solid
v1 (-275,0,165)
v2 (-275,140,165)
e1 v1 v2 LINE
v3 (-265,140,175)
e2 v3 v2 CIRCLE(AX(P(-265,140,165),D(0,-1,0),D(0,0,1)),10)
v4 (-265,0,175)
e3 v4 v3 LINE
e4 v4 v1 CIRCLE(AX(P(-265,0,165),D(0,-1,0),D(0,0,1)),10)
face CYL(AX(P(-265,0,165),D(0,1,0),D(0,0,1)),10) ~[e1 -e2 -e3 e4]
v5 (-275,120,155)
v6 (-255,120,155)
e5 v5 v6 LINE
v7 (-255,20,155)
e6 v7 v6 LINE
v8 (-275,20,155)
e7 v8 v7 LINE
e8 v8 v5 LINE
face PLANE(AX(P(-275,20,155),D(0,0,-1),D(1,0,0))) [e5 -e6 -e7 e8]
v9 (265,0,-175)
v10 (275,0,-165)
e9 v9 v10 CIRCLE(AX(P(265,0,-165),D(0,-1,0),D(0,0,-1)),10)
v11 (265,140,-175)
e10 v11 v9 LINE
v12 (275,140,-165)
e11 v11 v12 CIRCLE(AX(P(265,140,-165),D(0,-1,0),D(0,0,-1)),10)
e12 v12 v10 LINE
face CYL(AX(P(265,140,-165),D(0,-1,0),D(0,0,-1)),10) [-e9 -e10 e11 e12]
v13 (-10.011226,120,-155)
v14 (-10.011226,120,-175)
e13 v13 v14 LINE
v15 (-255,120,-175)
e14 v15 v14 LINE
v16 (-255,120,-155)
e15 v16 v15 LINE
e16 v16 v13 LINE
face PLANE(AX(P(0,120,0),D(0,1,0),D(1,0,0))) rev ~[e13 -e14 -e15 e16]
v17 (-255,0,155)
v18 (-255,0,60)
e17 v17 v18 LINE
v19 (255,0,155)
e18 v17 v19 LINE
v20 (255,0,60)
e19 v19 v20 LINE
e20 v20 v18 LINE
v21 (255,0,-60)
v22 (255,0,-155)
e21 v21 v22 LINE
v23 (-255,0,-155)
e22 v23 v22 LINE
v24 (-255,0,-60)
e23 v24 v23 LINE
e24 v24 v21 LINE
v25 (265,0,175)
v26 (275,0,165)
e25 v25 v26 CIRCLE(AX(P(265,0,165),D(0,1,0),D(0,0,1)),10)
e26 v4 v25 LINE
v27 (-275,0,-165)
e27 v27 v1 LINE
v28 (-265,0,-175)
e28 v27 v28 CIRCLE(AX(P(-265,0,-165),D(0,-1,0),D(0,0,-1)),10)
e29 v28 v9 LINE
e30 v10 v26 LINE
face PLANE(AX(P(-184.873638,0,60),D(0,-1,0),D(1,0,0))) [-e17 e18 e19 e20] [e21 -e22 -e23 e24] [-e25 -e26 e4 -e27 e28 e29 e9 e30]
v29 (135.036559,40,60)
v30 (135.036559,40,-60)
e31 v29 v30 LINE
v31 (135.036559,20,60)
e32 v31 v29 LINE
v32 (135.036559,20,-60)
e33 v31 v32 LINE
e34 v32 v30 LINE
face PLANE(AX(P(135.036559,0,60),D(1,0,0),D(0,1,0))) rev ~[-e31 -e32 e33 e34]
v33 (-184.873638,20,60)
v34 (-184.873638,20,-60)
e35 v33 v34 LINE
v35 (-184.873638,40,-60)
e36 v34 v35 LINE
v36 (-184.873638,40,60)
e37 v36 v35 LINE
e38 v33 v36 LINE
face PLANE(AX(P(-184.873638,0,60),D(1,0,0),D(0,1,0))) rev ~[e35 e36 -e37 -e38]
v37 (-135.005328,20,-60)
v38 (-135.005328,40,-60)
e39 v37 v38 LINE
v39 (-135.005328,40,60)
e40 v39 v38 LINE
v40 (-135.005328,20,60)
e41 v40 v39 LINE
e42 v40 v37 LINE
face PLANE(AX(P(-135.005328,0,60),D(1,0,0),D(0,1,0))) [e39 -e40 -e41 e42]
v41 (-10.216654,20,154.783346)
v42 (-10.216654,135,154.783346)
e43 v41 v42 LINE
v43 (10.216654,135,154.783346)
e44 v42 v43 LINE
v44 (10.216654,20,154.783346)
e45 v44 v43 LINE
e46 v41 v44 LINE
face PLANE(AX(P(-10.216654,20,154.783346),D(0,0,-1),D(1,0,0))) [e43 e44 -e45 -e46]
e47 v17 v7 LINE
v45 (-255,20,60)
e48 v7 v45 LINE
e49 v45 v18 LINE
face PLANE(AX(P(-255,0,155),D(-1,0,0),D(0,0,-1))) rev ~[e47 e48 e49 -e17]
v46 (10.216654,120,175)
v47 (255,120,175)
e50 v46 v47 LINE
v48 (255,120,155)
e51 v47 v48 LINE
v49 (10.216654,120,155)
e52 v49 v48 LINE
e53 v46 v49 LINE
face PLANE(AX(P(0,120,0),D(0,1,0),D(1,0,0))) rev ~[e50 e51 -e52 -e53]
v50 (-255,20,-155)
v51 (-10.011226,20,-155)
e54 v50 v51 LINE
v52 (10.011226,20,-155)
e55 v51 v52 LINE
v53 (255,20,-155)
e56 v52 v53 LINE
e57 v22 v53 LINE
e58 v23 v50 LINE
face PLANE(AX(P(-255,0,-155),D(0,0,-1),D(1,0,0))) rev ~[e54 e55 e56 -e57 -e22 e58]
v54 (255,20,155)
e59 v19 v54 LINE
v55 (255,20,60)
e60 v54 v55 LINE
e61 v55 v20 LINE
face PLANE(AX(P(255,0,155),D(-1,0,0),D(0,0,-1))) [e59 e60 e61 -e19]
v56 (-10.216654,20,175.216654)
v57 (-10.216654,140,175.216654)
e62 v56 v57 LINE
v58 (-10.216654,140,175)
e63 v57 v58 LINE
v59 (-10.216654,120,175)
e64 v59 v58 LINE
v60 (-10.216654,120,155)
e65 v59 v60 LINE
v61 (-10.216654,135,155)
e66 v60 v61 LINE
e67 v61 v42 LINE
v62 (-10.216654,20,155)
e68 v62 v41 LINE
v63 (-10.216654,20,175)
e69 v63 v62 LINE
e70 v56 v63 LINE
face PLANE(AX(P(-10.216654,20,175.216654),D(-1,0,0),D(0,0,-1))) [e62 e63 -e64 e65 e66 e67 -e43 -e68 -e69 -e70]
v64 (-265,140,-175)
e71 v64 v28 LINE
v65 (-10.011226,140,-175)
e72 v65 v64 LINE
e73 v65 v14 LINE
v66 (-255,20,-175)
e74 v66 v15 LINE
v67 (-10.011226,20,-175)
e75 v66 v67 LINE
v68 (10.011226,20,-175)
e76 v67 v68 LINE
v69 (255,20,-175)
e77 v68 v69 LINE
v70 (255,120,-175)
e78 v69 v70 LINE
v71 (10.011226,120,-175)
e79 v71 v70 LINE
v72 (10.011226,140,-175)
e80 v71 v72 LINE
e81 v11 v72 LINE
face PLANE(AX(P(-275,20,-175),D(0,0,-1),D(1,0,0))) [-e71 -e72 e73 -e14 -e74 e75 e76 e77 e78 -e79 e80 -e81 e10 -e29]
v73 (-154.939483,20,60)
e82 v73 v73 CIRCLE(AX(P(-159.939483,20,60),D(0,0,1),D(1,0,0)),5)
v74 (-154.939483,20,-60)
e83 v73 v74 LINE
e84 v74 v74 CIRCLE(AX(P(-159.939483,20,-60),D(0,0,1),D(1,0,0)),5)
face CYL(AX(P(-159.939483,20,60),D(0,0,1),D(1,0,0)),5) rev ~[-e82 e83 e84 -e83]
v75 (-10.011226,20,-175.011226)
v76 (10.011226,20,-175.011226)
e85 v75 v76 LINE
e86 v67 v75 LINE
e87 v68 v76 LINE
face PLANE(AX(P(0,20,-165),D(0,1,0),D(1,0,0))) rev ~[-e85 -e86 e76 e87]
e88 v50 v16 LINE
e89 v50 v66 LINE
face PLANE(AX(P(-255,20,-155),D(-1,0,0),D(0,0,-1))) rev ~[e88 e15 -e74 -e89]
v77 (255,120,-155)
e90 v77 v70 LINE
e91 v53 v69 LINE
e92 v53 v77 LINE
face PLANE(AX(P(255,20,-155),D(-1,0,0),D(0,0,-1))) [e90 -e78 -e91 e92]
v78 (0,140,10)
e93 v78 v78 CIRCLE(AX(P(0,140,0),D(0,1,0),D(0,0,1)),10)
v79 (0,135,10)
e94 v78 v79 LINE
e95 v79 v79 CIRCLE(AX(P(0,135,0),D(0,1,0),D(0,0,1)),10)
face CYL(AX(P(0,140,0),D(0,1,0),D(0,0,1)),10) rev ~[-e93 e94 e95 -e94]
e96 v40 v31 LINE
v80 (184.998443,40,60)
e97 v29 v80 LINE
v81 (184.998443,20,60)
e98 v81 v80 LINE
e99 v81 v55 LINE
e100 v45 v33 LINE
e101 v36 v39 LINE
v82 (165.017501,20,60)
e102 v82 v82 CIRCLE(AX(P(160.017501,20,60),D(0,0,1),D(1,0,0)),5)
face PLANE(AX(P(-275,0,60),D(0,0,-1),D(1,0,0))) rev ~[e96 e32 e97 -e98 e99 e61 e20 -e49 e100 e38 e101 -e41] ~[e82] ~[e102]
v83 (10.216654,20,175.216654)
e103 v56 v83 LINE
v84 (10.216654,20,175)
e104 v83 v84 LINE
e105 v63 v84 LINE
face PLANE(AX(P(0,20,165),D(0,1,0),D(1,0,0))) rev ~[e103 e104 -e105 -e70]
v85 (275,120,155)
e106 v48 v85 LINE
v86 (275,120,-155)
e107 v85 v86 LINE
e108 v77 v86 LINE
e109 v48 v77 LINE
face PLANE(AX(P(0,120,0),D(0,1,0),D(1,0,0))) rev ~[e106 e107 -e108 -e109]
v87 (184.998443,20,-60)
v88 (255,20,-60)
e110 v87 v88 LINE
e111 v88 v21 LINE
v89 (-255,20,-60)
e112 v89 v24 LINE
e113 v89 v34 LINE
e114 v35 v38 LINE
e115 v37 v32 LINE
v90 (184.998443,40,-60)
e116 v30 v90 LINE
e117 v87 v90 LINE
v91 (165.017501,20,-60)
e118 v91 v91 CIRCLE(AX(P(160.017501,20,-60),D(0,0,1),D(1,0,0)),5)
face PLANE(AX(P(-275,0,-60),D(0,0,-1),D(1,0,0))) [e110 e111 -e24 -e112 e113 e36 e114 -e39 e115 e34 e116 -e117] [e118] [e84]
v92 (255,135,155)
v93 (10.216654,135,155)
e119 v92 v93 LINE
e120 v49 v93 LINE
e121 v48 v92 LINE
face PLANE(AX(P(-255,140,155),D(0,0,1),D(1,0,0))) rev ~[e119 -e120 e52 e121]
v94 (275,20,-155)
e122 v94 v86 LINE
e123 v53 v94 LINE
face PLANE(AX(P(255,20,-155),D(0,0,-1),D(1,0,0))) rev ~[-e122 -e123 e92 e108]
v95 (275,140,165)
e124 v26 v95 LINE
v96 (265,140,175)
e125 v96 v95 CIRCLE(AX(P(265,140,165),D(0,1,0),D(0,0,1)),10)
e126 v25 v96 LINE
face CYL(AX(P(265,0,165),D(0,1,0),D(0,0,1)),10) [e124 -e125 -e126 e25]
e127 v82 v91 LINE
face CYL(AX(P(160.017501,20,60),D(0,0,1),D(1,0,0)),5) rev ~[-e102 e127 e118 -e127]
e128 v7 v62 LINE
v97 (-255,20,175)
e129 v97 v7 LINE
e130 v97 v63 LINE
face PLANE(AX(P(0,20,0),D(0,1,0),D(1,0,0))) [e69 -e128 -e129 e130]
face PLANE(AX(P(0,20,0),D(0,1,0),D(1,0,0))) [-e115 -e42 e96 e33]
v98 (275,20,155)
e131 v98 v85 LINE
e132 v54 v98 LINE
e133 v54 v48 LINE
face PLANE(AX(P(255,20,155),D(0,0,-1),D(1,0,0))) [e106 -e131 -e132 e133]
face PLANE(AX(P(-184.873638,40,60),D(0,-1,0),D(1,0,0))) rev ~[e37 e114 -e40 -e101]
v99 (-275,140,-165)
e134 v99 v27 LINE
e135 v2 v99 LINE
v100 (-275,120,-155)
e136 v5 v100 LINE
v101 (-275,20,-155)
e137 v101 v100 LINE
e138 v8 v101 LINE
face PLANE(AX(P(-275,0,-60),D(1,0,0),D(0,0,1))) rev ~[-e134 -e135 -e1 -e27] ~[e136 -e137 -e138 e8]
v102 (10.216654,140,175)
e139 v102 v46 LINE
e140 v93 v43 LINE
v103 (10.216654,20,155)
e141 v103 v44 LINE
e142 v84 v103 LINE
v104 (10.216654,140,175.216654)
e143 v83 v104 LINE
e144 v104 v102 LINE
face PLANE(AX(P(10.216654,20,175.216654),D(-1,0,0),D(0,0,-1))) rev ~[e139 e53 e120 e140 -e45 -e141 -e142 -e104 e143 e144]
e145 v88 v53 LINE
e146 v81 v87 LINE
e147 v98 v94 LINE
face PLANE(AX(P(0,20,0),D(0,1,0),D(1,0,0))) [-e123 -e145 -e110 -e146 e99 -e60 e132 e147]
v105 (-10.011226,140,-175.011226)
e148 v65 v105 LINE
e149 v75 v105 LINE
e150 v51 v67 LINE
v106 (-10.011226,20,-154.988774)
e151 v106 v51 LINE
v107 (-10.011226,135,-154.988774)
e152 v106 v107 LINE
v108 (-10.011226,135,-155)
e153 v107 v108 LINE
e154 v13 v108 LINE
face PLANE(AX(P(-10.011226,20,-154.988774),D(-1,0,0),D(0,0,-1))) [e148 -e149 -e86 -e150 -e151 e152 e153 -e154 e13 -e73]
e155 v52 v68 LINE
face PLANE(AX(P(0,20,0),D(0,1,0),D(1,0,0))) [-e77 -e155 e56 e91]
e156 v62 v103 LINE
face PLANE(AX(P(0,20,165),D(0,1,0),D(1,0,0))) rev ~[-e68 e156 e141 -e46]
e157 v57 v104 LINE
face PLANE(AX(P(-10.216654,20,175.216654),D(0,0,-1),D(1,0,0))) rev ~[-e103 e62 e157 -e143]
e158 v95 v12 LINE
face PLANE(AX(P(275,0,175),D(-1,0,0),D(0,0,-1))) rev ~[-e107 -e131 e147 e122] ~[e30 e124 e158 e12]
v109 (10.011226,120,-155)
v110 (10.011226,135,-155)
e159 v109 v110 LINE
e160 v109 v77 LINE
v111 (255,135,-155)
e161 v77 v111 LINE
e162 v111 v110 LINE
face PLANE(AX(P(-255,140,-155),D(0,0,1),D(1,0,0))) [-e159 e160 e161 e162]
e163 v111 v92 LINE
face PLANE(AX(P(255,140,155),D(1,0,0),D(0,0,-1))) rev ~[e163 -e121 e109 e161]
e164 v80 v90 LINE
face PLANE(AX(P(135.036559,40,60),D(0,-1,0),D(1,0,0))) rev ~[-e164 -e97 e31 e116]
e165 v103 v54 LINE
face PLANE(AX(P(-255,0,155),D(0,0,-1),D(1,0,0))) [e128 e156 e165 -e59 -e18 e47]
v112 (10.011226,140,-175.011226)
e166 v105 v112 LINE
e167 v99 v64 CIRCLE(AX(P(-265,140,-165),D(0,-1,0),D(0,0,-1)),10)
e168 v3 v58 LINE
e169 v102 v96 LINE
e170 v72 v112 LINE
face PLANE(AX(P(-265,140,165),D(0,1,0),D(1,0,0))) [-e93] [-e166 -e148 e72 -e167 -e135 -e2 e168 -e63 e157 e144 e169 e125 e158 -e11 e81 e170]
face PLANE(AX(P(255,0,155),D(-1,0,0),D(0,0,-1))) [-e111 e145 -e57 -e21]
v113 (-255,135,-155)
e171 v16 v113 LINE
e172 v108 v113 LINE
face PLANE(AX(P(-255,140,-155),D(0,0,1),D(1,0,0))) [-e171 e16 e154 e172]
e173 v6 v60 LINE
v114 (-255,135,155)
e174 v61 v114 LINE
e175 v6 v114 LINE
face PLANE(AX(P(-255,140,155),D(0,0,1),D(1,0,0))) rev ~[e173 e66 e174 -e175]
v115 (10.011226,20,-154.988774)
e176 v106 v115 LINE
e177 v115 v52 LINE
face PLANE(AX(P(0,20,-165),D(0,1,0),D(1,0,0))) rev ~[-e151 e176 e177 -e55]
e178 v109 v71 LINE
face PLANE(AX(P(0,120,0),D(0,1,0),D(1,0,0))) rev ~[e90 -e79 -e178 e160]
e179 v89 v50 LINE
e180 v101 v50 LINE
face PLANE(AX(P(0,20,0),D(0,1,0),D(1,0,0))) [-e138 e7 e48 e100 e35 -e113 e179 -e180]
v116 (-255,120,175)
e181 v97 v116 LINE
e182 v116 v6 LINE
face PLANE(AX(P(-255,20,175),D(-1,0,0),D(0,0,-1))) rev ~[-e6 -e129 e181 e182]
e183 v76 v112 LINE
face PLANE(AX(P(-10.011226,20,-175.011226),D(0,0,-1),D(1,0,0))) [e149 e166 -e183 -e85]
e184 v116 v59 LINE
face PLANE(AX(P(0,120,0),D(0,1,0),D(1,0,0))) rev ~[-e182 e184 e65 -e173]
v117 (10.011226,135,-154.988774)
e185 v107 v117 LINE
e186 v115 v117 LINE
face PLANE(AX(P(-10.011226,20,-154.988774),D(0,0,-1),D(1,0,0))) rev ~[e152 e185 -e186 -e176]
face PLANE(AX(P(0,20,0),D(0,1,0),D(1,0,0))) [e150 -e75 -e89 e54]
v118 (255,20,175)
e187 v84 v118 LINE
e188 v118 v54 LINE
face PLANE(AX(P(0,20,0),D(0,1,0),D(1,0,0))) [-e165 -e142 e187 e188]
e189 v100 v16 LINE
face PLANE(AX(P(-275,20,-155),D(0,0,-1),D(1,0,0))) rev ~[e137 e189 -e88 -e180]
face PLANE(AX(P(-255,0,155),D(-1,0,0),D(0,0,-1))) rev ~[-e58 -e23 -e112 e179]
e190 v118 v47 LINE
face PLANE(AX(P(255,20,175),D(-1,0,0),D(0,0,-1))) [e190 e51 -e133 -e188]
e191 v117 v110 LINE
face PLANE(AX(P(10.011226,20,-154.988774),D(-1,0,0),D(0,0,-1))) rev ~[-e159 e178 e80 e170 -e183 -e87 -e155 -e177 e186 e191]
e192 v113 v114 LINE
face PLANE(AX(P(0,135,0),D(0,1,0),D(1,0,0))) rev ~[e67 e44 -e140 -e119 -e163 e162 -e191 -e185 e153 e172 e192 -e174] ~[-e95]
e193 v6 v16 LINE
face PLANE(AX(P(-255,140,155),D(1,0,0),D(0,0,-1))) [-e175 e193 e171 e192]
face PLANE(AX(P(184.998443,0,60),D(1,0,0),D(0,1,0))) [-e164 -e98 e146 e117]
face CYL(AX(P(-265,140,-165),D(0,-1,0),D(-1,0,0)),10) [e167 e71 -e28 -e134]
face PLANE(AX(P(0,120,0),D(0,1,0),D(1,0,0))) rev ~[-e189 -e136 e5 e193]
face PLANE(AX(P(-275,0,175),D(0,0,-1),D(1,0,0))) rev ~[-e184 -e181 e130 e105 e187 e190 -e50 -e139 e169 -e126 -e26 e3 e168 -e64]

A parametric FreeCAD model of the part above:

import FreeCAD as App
import Part
import Sketcher
from FreeCAD import Vector


def edges_at(feature, points):
    """Names of the edges that pass closest to the given points."""
    edges = feature.Shape.Edges
    near = lambda p: min(range(len(edges)), key=lambda i: edges[i].distToShape(Part.Vertex(*p))[0])
    return sorted({f"Edge{near(p) + 1}" for p in points})


def add_polygon(sketch, points):
    """Adds a closed chain of lines whose ends are joined by coincident constraints."""
    first, n = sketch.GeometryCount, len(points)
    for a, b in zip(points, points[1:] + points[:1]):
        sketch.addGeometry(Part.LineSegment(App.Vector(*a, 0), App.Vector(*b, 0)), False)
    for i in range(n):
        sketch.addConstraint(Sketcher.Constraint("Coincident", first + i, 2, first + (i + 1) % n, 1))

doc = App.newDocument("Part")
body = doc.addObject("PartDesign::Body", "Body")

sketch1 = body.newObject("Sketcher::SketchObject", "Sketch")
sketch1.AttachmentSupport = (doc.getObject("XZ_Plane"), [""])
sketch1.MapMode = "FlatFace"
add_polygon(sketch1, [(-275, -175), (-275, 175), (275, 175), (275, -175)])
add_polygon(sketch1, [(255, 155), (-255, 155), (-255, -155), (255, -155)])
sketch1.addConstraint([
    Sketcher.Constraint("Vertical", 0),
    Sketcher.Constraint("Horizontal", 1),
    Sketcher.Constraint("Vertical", 2),
    Sketcher.Constraint("Horizontal", 3),
    Sketcher.Constraint("Horizontal", 4),
    Sketcher.Constraint("Vertical", 5),
    Sketcher.Constraint("Horizontal", 6),
    Sketcher.Constraint("Vertical", 7),
    Sketcher.Constraint("Symmetric", 0, 2, 2, 2, -1, 1),
    Sketcher.Constraint("Symmetric", 4, 2, 6, 2, -1, 1),
    Sketcher.Constraint("DistanceX", 1, 1, 1, 2, 550.0),
    Sketcher.Constraint("DistanceX", 4, 2, 4, 1, 510.0),
    Sketcher.Constraint("DistanceY", 0, 1, 0, 2, 350.0),
    Sketcher.Constraint("DistanceY", 5, 2, 5, 1, 310.0),
])
pad1 = body.newObject("PartDesign::Pad", "Pad")
pad1.Profile = sketch1
pad1.Length = 20
pad1.Reversed = True

sketch2 = body.newObject("Sketcher::SketchObject", "Sketch001")
sketch2.AttachmentSupport = (doc.getObject("XZ_Plane"), [""])
sketch2.MapMode = "FlatFace"
sketch2.AttachmentOffset = App.Placement(Vector(0, 0, -20), App.Rotation())
add_polygon(sketch2, [(-275, -175), (-275, -155), (-255, -155), (-255, -175)])
add_polygon(sketch2, [(-275, 155), (-275, 175), (-255, 175), (-255, 155)])
add_polygon(sketch2, [(255, 155), (255, 175), (275, 175), (275, 155)])
add_polygon(sketch2, [(255, -175), (255, -155), (275, -155), (275, -175)])
add_polygon(sketch2, [(-10.011226, -175.011226), (-10.011226, -154.988774), (10.011226, -154.988774), (10.011226, -175.011226)])
add_polygon(sketch2, [(-10.216654, 154.783346), (-10.216654, 175.216654), (10.216654, 175.216654), (10.216654, 154.783346)])
sketch2.addConstraint([
    Sketcher.Constraint("Vertical", 0),
    Sketcher.Constraint("Horizontal", 1),
    Sketcher.Constraint("Vertical", 2),
    Sketcher.Constraint("Horizontal", 3),
    Sketcher.Constraint("Vertical", 4),
    Sketcher.Constraint("Horizontal", 5),
    Sketcher.Constraint("Vertical", 6),
    Sketcher.Constraint("Horizontal", 7),
    Sketcher.Constraint("Vertical", 8),
    Sketcher.Constraint("Horizontal", 9),
    Sketcher.Constraint("Vertical", 10),
    Sketcher.Constraint("Horizontal", 11),
    Sketcher.Constraint("Vertical", 12),
    Sketcher.Constraint("Horizontal", 13),
    Sketcher.Constraint("Vertical", 14),
    Sketcher.Constraint("Horizontal", 15),
    Sketcher.Constraint("Vertical", 16),
    Sketcher.Constraint("Horizontal", 17),
    Sketcher.Constraint("Vertical", 18),
    Sketcher.Constraint("Horizontal", 19),
    Sketcher.Constraint("Vertical", 20),
    Sketcher.Constraint("Horizontal", 21),
    Sketcher.Constraint("Vertical", 22),
    Sketcher.Constraint("Horizontal", 23),
    Sketcher.Constraint("Symmetric", 2, 2, 8, 2, -1, 1),
    Sketcher.Constraint("Symmetric", 0, 2, 10, 2, -1, 1),
    Sketcher.Constraint("Symmetric", 6, 2, 12, 2, -1, 1),
    Sketcher.Constraint("Symmetric", 4, 2, 14, 2, -1, 1),
    Sketcher.Constraint("Symmetric", 5, 2, 8, 2, -2),
    Sketcher.Constraint("Symmetric", 7, 2, 10, 2, -2),
    Sketcher.Constraint("Equal", 15, 0),
    Sketcher.Constraint("Equal", 19, 16),
    Sketcher.Constraint("Equal", 23, 20),
    Sketcher.Constraint("DistanceX", 1, 1, 1, 2, 20.0),
    Sketcher.Constraint("DistanceX", 0, 2, -1, 1, 275.0),
    Sketcher.Constraint("DistanceY", 0, 2, -1, 1, 155.0),
    Sketcher.Constraint("DistanceX", 17, 1, 17, 2, 20.022452),
    Sketcher.Constraint("DistanceX", 21, 1, 21, 2, 20.433308),
    Sketcher.Constraint("DistanceX", 16, 2, -1, 1, 10.011226),
    Sketcher.Constraint("DistanceY", 16, 2, -1, 1, 154.988774),
    Sketcher.Constraint("DistanceX", 20, 2, -1, 1, 10.216654),
    Sketcher.Constraint("DistanceY", -1, 1, 20, 2, 175.216654),
])
pad2 = body.newObject("PartDesign::Pad", "Pad001")
pad2.Profile = sketch2
pad2.Length = 120
pad2.Reversed = True

sketch3 = body.newObject("Sketcher::SketchObject", "Sketch002")
sketch3.AttachmentSupport = (doc.getObject("XZ_Plane"), [""])
sketch3.MapMode = "FlatFace"
sketch3.AttachmentOffset = App.Placement(Vector(0, 0, -140), App.Rotation())
add_polygon(sketch3, [(-275, -175), (-275, 175), (275, 175), (275, -175)])
add_polygon(sketch3, [(255, 155), (-255, 155), (-255, -155), (255, -155)])
sketch3.addConstraint([
    Sketcher.Constraint("Vertical", 0),
    Sketcher.Constraint("Horizontal", 1),
    Sketcher.Constraint("Vertical", 2),
    Sketcher.Constraint("Horizontal", 3),
    Sketcher.Constraint("Horizontal", 4),
    Sketcher.Constraint("Vertical", 5),
    Sketcher.Constraint("Horizontal", 6),
    Sketcher.Constraint("Vertical", 7),
    Sketcher.Constraint("Symmetric", 0, 2, 2, 2, -1, 1),
    Sketcher.Constraint("Symmetric", 4, 2, 6, 2, -1, 1),
    Sketcher.Constraint("DistanceX", 1, 1, 1, 2, 550.0),
    Sketcher.Constraint("DistanceX", 4, 2, 4, 1, 510.0),
    Sketcher.Constraint("DistanceY", 0, 1, 0, 2, 350.0),
    Sketcher.Constraint("DistanceY", 5, 2, 5, 1, 310.0),
])
pad3 = body.newObject("PartDesign::Pad", "Pad002")
pad3.Profile = sketch3
pad3.Length = 20

sketch4 = body.newObject("Sketcher::SketchObject", "Sketch003")
sketch4.AttachmentSupport = (doc.getObject("XZ_Plane"), [""])
sketch4.MapMode = "FlatFace"
sketch4.AttachmentOffset = App.Placement(Vector(0, 0, -140), App.Rotation())
add_polygon(sketch4, [(-275, -175), (-275, 175), (275, 175), (275, -175)])
sketch4.addConstraint([
    Sketcher.Constraint("Vertical", 0),
    Sketcher.Constraint("Horizontal", 1),
    Sketcher.Constraint("Vertical", 2),
    Sketcher.Constraint("Horizontal", 3),
    Sketcher.Constraint("Symmetric", 0, 2, 2, 2, -1, 1),
    Sketcher.Constraint("DistanceX", 1, 1, 1, 2, 550.0),
    Sketcher.Constraint("DistanceY", 0, 1, 0, 2, 350.0),
])
pad4 = body.newObject("PartDesign::Pad", "Pad003")
pad4.Profile = sketch4
pad4.Length = 5

sketch5 = body.newObject("Sketcher::SketchObject", "Sketch004")
sketch5.AttachmentSupport = (doc.getObject("XZ_Plane"), [""])
sketch5.MapMode = "FlatFace"
add_polygon(sketch5, [(-275, 60), (-275, -60), (275, -60), (275, 60)])
sketch5.addConstraint([
    Sketcher.Constraint("Vertical", 0),
    Sketcher.Constraint("Horizontal", 1),
    Sketcher.Constraint("Vertical", 2),
    Sketcher.Constraint("Horizontal", 3),
    Sketcher.Constraint("Symmetric", 0, 2, 2, 2, -1, 1),
    Sketcher.Constraint("DistanceX", 1, 1, 1, 2, 550.0),
    Sketcher.Constraint("DistanceY", 0, 2, 0, 1, 120.0),
])
pad5 = body.newObject("PartDesign::Pad", "Pad004")
pad5.Profile = sketch5
pad5.Length = 20
pad5.Reversed = True

sketch6 = body.newObject("Sketcher::SketchObject", "Sketch005")
sketch6.AttachmentSupport = (doc.getObject("XY_Plane"), [""])
sketch6.MapMode = "FlatFace"
sketch6.AttachmentOffset = App.Placement(Vector(0, 0, 60), App.Rotation())
add_polygon(sketch6, [(-184.873638, 40), (-184.873638, 0), (-135.005328, 0), (-135.005328, 40)])
add_polygon(sketch6, [(135.036559, 40), (135.036559, 0), (184.998443, 0), (184.998443, 40)])
sketch6.addConstraint([
    Sketcher.Constraint("Vertical", 0),
    Sketcher.Constraint("Horizontal", 1),
    Sketcher.Constraint("Vertical", 2),
    Sketcher.Constraint("Horizontal", 3),
    Sketcher.Constraint("Vertical", 4),
    Sketcher.Constraint("Horizontal", 5),
    Sketcher.Constraint("Vertical", 6),
    Sketcher.Constraint("Horizontal", 7),
    Sketcher.Constraint("PointOnObject", 0, 2, -1),
    Sketcher.Constraint("PointOnObject", 4, 2, -1),
    Sketcher.Constraint("Horizontal", 3, 2, 6, 2),
    Sketcher.Constraint("DistanceY", 0, 2, 0, 1, 40.0),
    Sketcher.Constraint("DistanceX", 1, 1, 1, 2, 49.86831),
    Sketcher.Constraint("DistanceX", 5, 1, 5, 2, 49.961884),
    Sketcher.Constraint("DistanceX", 1, 2, -1, 1, 135.005328),
    Sketcher.Constraint("DistanceX", -1, 1, 4, 2, 135.036559),
])
pad6 = body.newObject("PartDesign::Pad", "Pad005")
pad6.Profile = sketch6
pad6.Length = 120
pad6.Reversed = True

sketch7 = body.newObject("Sketcher::SketchObject", "Sketch006")
sketch7.AttachmentSupport = (doc.getObject("XY_Plane"), [""])
sketch7.MapMode = "FlatFace"
sketch7.AttachmentOffset = App.Placement(Vector(0, 0, 60), App.Rotation())
sketch7.addGeometry([
    Part.Circle(Vector(160.017501, 20, 0), Vector(0, 0, 1), 5),
    Part.Circle(Vector(-159.939483, 20, 0), Vector(0, 0, 1), 5),
], False)
sketch7.addConstraint([
    Sketcher.Constraint("Equal", 0, 1),
    Sketcher.Constraint("Horizontal", 0, 3, 1, 3),
    Sketcher.Constraint("Diameter", 0, 10.0),
    Sketcher.Constraint("DistanceY", -1, 1, 0, 3, 20.0),
    Sketcher.Constraint("DistanceX", -1, 1, 0, 3, 160.017501),
    Sketcher.Constraint("DistanceX", 1, 3, -1, 1, 159.939483),
])
pocket1 = body.newObject("PartDesign::Pocket", "Pocket")
pocket1.Profile = sketch7
pocket1.Length = 181
doc.recompute()

fillet = body.newObject("PartDesign::Fillet", "Fillet")
fillet.Base = (pocket1, edges_at(pocket1, [
    (275, 70, 175),
    (-275, 70, 175),
    (-275, 70, -175),
    (275, 70, -175),
]))
fillet.Radius = 10

sketch8 = body.newObject("Sketcher::SketchObject", "Sketch007")
sketch8.AttachmentSupport = (doc.getObject("XZ_Plane"), [""])
sketch8.MapMode = "FlatFace"
sketch8.AttachmentOffset = App.Placement(Vector(0, 0, -140), App.Rotation())
sketch8.addGeometry(Part.Circle(Vector(0, 0, 0), Vector(0, 0, 1), 10), False)
sketch8.addConstraint([
    Sketcher.Constraint("Coincident", 0, 3, -1, 1),
    Sketcher.Constraint("Diameter", 0, 20.0),
])
pocket2 = body.newObject("PartDesign::Pocket", "Pocket001")
pocket2.Profile = sketch8
pocket2.Length = 43
pocket2.Reversed = True

doc.recompute()
